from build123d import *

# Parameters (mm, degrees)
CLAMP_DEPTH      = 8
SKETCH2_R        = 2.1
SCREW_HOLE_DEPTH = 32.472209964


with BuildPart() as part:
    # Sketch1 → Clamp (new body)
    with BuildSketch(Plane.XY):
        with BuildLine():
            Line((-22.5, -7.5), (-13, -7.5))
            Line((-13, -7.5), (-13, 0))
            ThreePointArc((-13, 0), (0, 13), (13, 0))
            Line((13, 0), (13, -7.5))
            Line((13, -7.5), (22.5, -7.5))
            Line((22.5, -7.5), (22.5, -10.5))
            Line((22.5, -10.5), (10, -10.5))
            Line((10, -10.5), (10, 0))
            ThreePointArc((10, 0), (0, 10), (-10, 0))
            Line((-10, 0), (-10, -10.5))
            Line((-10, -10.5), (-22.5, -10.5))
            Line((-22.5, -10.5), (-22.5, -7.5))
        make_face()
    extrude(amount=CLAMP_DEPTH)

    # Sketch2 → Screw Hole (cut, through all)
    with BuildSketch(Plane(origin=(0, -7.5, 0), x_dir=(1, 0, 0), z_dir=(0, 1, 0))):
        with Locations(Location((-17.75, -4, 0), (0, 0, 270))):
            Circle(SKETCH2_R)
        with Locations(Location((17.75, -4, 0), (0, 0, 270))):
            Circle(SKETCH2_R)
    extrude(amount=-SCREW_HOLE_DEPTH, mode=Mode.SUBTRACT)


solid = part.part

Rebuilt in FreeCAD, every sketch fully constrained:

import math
import FreeCAD as App
import Part
import Sketcher
from FreeCAD import Vector

doc = App.newDocument("Part")
params = doc.addObject("Spreadsheet::Sheet", "Params")
for row, (alias, value) in enumerate([
    ("sketch1_radius", "10 mm"),
    ("sketch1_radius2", "13 mm"),
    ("sketch1_height", "3 mm"),
    ("sketch1_width", "9.5 mm"),
    ("sketch1_height2", "10.5 mm"),
    ("pad1_length", "8 mm"),
    ("sketch2_diameter", "4.2 mm"),
], start=1):
    params.set(f"A{row}", alias)
    params.set(f"B{row}", "=" + value)
    params.setAlias(f"B{row}", alias)

body = doc.addObject("PartDesign::Body", "Body")

# Sketch on XY plane
sketch1 = body.newObject("Sketcher::SketchObject", "Sketch")
sketch1.AttachmentSupport = (doc.getObject("XY_Plane"), [""])
sketch1.MapMode = "FlatFace"
sketch1.addGeometry(Part.LineSegment(Vector(-13, -7.5, 0), Vector(-22.5, -7.5, 0)), False)
sketch1.addGeometry(Part.LineSegment(Vector(-22.5, -7.5, 0), Vector(-22.5, -10.5, 0)), False)
sketch1.addGeometry(Part.LineSegment(Vector(-22.5, -10.5, 0), Vector(-10, -10.5, 0)), False)
sketch1.addGeometry(Part.LineSegment(Vector(-10, -10.5, 0), Vector(-10, 0, 0)), False)
sketch1.addGeometry(Part.ArcOfCircle(Part.Circle(Vector(0, 0, 0), Vector(0, 0, 1), 10), math.radians(0), math.radians(180)), False)
sketch1.addGeometry(Part.LineSegment(Vector(10, 0, 0), Vector(10, -10.5, 0)), False)
sketch1.addGeometry(Part.LineSegment(Vector(10, -10.5, 0), Vector(22.5, -10.5, 0)), False)
sketch1.addGeometry(Part.LineSegment(Vector(22.5, -10.5, 0), Vector(22.5, -7.5, 0)), False)
sketch1.addGeometry(Part.LineSegment(Vector(22.5, -7.5, 0), Vector(13, -7.5, 0)), False)
sketch1.addGeometry(Part.LineSegment(Vector(13, -7.5, 0), Vector(13, 0, 0)), False)
sketch1.addGeometry(Part.ArcOfCircle(Part.Circle(Vector(0, 0, 0), Vector(0, 0, 1), 13), math.radians(0), math.radians(180)), False)
sketch1.addGeometry(Part.LineSegment(Vector(-13, 0, 0), Vector(-13, -7.5, 0)), False)
sketch1.addConstraint(Sketcher.Constraint("Coincident", 0, 2, 1, 1))
sketch1.addConstraint(Sketcher.Constraint("Coincident", 1, 2, 2, 1))
sketch1.addConstraint(Sketcher.Constraint("Coincident", 2, 2, 3, 1))
sketch1.addConstraint(Sketcher.Constraint("Tangent", 3, 2, 4, 2))
sketch1.addConstraint(Sketcher.Constraint("Tangent", 4, 1, 5, 1))
sketch1.addConstraint(Sketcher.Constraint("Coincident", 5, 2, 6, 1))
sketch1.addConstraint(Sketcher.Constraint("Coincident", 6, 2, 7, 1))
sketch1.addConstraint(Sketcher.Constraint("Coincident", 7, 2, 8, 1))
sketch1.addConstraint(Sketcher.Constraint("Coincident", 8, 2, 9, 1))
sketch1.addConstraint(Sketcher.Constraint("Tangent", 9, 2, 10, 1))
sketch1.addConstraint(Sketcher.Constraint("Tangent", 10, 2, 11, 1))
sketch1.addConstraint(Sketcher.Constraint("Coincident", 11, 2, 0, 1))
sketch1.addConstraint(Sketcher.Constraint("Horizontal", 0))
sketch1.addConstraint(Sketcher.Constraint("Vertical", 1))
sketch1.addConstraint(Sketcher.Constraint("Horizontal", 2))
sketch1.addConstraint(Sketcher.Constraint("Vertical", 3))
sketch1.addConstraint(Sketcher.Constraint("Vertical", 5))
sketch1.addConstraint(Sketcher.Constraint("Horizontal", 6))
sketch1.addConstraint(Sketcher.Constraint("Vertical", 7))
sketch1.addConstraint(Sketcher.Constraint("Horizontal", 8))
sketch1.addConstraint(Sketcher.Constraint("Vertical", 9))
sketch1.addConstraint(Sketcher.Constraint("Vertical", 11))
sketch1.addConstraint(Sketcher.Constraint("Coincident", 4, 3, -1, 1))
sketch1.addConstraint(Sketcher.Constraint("Coincident", 10, 3, -1, 1))
sketch1.addConstraint(Sketcher.Constraint("Symmetric", 1, 2, 6, 2, -2))
sketch1.addConstraint(Sketcher.Constraint("Horizontal", 0, 2, 7, 2))
sketch1.addConstraint(Sketcher.Constraint("Radius", 4, 10.0))
sketch1.addConstraint(Sketcher.Constraint("Radius", 10, 13.0))
sketch1.addConstraint(Sketcher.Constraint("DistanceY", 1, 2, 1, 1, 3.0))
sketch1.addConstraint(Sketcher.Constraint("DistanceX", 0, 2, 0, 1, 9.5))
sketch1.addConstraint(Sketcher.Constraint("DistanceY", 3, 1, 3, 2, 10.5))
sketch1.setExpression("Constraints[26]", "Params.sketch1_radius")
sketch1.setExpression("Constraints[27]", "Params.sketch1_radius2")
sketch1.setExpression("Constraints[28]", "Params.sketch1_height")
sketch1.setExpression("Constraints[29]", "Params.sketch1_width")
sketch1.setExpression("Constraints[30]", "Params.sketch1_height2")
pad1 = body.newObject("PartDesign::Pad", "Pad")
pad1.Profile = sketch1
pad1.setExpression("Length", "Params.pad1_length")

# Sketch on XZ plane
sketch2 = body.newObject("Sketcher::SketchObject", "Sketch001")
sketch2.AttachmentSupport = (doc.getObject("XZ_Plane"), [""])
sketch2.MapMode = "FlatFace"
sketch2.AttachmentOffset = App.Placement(Vector(0, 0, 7.5), App.Rotation())
sketch2.addGeometry(Part.Circle(Vector(-17.75, 4, 0), Vector(0, 0, 1), 2.1), False)
sketch2.addGeometry(Part.Circle(Vector(17.75, 4, 0), Vector(0, 0, 1), 2.1), False)
sketch2.addConstraint(Sketcher.Constraint("Equal", 0, 1))
sketch2.addConstraint(Sketcher.Constraint("Symmetric", 0, 3, 1, 3, -2))
sketch2.addConstraint(Sketcher.Constraint("Diameter", 0, 4.2))
sketch2.addConstraint(Sketcher.Constraint("DistanceY", -1, 1, 0, 3, 4.0))
sketch2.addConstraint(Sketcher.Constraint("DistanceX", 0, 3, 1, 3, 35.5))
sketch2.setExpression("Constraints[2]", "Params.sketch2_diameter")
pocket1 = body.newObject("PartDesign::Pocket", "Pocket")
pocket1.Profile = sketch2
pocket1.Type = "ThroughAll"
pocket1.Reversed = True

doc.recompute()
